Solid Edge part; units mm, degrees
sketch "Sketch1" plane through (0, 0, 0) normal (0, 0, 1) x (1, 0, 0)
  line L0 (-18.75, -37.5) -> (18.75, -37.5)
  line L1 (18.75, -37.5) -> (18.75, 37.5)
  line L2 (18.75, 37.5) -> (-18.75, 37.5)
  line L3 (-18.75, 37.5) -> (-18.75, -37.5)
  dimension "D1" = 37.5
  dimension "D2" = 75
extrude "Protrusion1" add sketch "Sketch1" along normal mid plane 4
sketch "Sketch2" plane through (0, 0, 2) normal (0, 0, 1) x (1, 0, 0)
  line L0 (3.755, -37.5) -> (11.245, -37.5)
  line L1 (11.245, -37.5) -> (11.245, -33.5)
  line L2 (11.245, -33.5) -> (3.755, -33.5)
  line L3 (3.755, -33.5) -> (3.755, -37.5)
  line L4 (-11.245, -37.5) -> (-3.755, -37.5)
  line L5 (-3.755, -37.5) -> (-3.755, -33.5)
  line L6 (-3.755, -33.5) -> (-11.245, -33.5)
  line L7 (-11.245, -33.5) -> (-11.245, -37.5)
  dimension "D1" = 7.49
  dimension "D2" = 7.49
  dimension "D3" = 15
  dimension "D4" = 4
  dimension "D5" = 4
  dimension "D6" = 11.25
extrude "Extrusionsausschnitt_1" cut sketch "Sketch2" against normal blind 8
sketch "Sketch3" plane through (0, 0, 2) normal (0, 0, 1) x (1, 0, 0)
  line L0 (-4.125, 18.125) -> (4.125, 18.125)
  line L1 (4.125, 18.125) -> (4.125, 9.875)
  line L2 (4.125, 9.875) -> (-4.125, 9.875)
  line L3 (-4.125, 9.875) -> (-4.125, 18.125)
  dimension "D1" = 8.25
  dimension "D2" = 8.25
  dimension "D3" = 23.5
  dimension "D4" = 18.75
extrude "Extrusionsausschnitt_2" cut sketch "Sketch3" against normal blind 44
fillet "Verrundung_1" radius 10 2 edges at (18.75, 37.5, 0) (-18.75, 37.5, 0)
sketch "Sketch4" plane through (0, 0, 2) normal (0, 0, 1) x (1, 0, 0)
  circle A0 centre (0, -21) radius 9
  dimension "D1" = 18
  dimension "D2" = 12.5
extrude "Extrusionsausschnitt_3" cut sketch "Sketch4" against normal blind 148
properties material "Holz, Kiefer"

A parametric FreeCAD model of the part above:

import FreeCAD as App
import Part
import Sketcher
from FreeCAD import Vector


def edges_at(feature, points):
    """Names of the edges that pass closest to the given points."""
    edges = feature.Shape.Edges
    near = lambda p: min(range(len(edges)), key=lambda i: edges[i].distToShape(Part.Vertex(*p))[0])
    return sorted({f"Edge{near(p) + 1}" for p in points})


def add_polygon(sketch, points):
    """Adds a closed chain of lines whose ends are joined by coincident constraints."""
    first, n = sketch.GeometryCount, len(points)
    for a, b in zip(points, points[1:] + points[:1]):
        sketch.addGeometry(Part.LineSegment(App.Vector(*a, 0), App.Vector(*b, 0)), False)
    for i in range(n):
        sketch.addConstraint(Sketcher.Constraint("Coincident", first + i, 2, first + (i + 1) % n, 1))

doc = App.newDocument("Part")
body = doc.addObject("PartDesign::Body", "Body")

# Sketch on XY plane
sketch1 = doc.addObject("Sketcher::SketchObject", "Sketch")
body.addObject(sketch1)
sketch1.AttachmentSupport = (doc.XY_Plane, [""])
sketch1.MapMode = "FlatFace"
add_polygon(sketch1, [(-19, 38), (-19, -38), (19, -38), (19, 38)])  # lines 0-3
sketch1.addConstraint(Sketcher.Constraint("Vertical", 0))
sketch1.addConstraint(Sketcher.Constraint("Horizontal", 1))
sketch1.addConstraint(Sketcher.Constraint("Vertical", 2))
sketch1.addConstraint(Sketcher.Constraint("Horizontal", 3))
sketch1.addConstraint(Sketcher.Constraint("Symmetric", 0, 2, 2, 2, -1, 1))
sketch1.addConstraint(Sketcher.Constraint("DistanceY", 0, 2, 0, 1, 75.0))
sketch1.addConstraint(Sketcher.Constraint("DistanceX", 0, 2, -1, 1, 18.75))
pad1 = doc.addObject("PartDesign::Pad", "Pad")
body.addObject(pad1)
pad1.Profile = sketch1
pad1.Length = 4
pad1.Midplane = True

# Sketch on XY plane
sketch2 = doc.addObject("Sketcher::SketchObject", "Sketch001")
body.addObject(sketch2)
sketch2.AttachmentSupport = (doc.XY_Plane, [""])
sketch2.MapMode = "FlatFace"
sketch2.AttachmentOffset = App.Placement(Vector(0, 0, 2), App.Rotation())
add_polygon(sketch2, [(3.8, -33.5), (3.8, -37.5), (11.2, -37.5), (11.2, -33.5)])  # lines 0-3
add_polygon(sketch2, [(-11.2, -33.5), (-11.2, -37.5), (-3.8, -37.5), (-3.8, -33.5)])  # lines 4-7
sketch2.addConstraint(Sketcher.Constraint("Vertical", 0))
sketch2.addConstraint(Sketcher.Constraint("Horizontal", 1))
sketch2.addConstraint(Sketcher.Constraint("Vertical", 2))
sketch2.addConstraint(Sketcher.Constraint("Horizontal", 3))
sketch2.addConstraint(Sketcher.Constraint("Vertical", 4))
sketch2.addConstraint(Sketcher.Constraint("Horizontal", 5))
sketch2.addConstraint(Sketcher.Constraint("Vertical", 6))
sketch2.addConstraint(Sketcher.Constraint("Horizontal", 7))
sketch2.addConstraint(Sketcher.Constraint("Symmetric", 1, 2, 4, 2, -2))
sketch2.addConstraint(Sketcher.Constraint("Symmetric", 3, 2, 6, 2, -2))
sketch2.addConstraint(Sketcher.Constraint("DistanceY", 0, 2, 0, 1, 4.0))
sketch2.addConstraint(Sketcher.Constraint("DistanceX", -1, 1, 0, 2, 3.755))
sketch2.addConstraint(Sketcher.Constraint("DistanceX", -1, 1, 1, 2, 11.245))
sketch2.addConstraint(Sketcher.Constraint("DistanceY", 0, 2, -1, 1, 37.5))
pocket1 = doc.addObject("PartDesign::Pocket", "Pocket")
body.addObject(pocket1)
pocket1.Profile = sketch2
pocket1.Length = 8

# Sketch on XY plane
sketch3 = doc.addObject("Sketcher::SketchObject", "Sketch002")
body.addObject(sketch3)
sketch3.AttachmentSupport = (doc.XY_Plane, [""])
sketch3.MapMode = "FlatFace"
sketch3.AttachmentOffset = App.Placement(Vector(0, 0, 2), App.Rotation())
add_polygon(sketch3, [(4, 18), (-4, 18), (-4, 10), (4, 10)])  # lines 0-3
sketch3.addConstraint(Sketcher.Constraint("Horizontal", 0))
sketch3.addConstraint(Sketcher.Constraint("Vertical", 1))
sketch3.addConstraint(Sketcher.Constraint("Horizontal", 2))
sketch3.addConstraint(Sketcher.Constraint("Vertical", 3))
sketch3.addConstraint(Sketcher.Constraint("Equal", 2, 1))
sketch3.addConstraint(Sketcher.Constraint("DistanceX", 0, 2, -1, 1, 4.125))
sketch3.addConstraint(Sketcher.Constraint("DistanceX", -1, 1, 2, 2, 4.125))
sketch3.addConstraint(Sketcher.Constraint("DistanceY", -1, 1, 0, 2, 18.125))
pocket2 = doc.addObject("PartDesign::Pocket", "Pocket001")
body.addObject(pocket2)
pocket2.Profile = sketch3
pocket2.Length = 44
doc.recompute()

fillet = doc.addObject("PartDesign::Fillet", "Fillet")
body.addObject(fillet)
fillet.Base = (pocket2, edges_at(pocket2, [(18.75, 37.5, 0), (-18.75, 37.5, 0)]))
fillet.Radius = 10

# Sketch on XY plane
sketch4 = doc.addObject("Sketcher::SketchObject", "Sketch003")
body.addObject(sketch4)
sketch4.AttachmentSupport = (doc.XY_Plane, [""])
sketch4.MapMode = "FlatFace"
sketch4.AttachmentOffset = App.Placement(Vector(0, 0, 2), App.Rotation())
sketch4.addGeometry(Part.Circle(Vector(0, -21, 0), Vector(0, 0, 1), 9), False)
sketch4.addConstraint(Sketcher.Constraint("PointOnObject", 0, 3, -2))
sketch4.addConstraint(Sketcher.Constraint("Diameter", 0, 18.0))
sketch4.addConstraint(Sketcher.Constraint("DistanceY", 0, 3, -1, 1, 21.0))
pocket3 = doc.addObject("PartDesign::Pocket", "Pocket002")
body.addObject(pocket3)
pocket3.Profile = sketch4
pocket3.Length = 148

doc.recompute()
